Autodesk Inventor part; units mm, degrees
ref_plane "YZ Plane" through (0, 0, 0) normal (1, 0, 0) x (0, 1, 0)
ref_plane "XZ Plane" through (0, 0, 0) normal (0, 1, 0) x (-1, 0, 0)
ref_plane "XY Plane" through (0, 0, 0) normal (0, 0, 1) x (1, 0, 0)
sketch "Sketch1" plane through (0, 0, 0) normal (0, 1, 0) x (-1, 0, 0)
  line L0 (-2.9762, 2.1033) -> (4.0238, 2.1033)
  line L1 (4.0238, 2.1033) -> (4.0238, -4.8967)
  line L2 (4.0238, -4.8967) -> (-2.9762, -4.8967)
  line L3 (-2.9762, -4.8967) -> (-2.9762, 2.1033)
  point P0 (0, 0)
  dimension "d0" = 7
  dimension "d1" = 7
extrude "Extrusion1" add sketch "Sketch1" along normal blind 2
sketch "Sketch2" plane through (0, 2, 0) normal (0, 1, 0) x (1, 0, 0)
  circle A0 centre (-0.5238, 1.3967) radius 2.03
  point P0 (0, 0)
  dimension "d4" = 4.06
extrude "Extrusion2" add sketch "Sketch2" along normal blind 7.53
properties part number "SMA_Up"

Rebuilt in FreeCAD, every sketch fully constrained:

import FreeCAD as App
import Part
import Sketcher

V = App.Vector
Q = App.Units.Quantity

doc = App.newDocument("Part")
body = doc.addObject("PartDesign::Body", "Body")

# Sketch on XZ plane
sketch1 = body.newObject("Sketcher::SketchObject", "Sketch")
sketch1.AttachmentSupport = (doc.getObject("XZ_Plane"), [""])
sketch1.MapMode = "FlatFace"
sketch1.addGeometry(Part.LineSegment(V(-4, 2, 0), V(3, 2, 0)), False)
sketch1.addGeometry(Part.LineSegment(V(3, 2, 0), V(3, -5, 0)), False)
sketch1.addGeometry(Part.LineSegment(V(3, -5, 0), V(-4, -5, 0)), False)
sketch1.addGeometry(Part.LineSegment(V(-4, -5, 0), V(-4, 2, 0)), False)
sketch1.addConstraint(Sketcher.Constraint("Coincident", 0, 2, 1, 1))
sketch1.addConstraint(Sketcher.Constraint("Coincident", 1, 2, 2, 1))
sketch1.addConstraint(Sketcher.Constraint("Coincident", 2, 2, 3, 1))
sketch1.addConstraint(Sketcher.Constraint("Coincident", 3, 2, 0, 1))
sketch1.addConstraint(Sketcher.Constraint("Horizontal", 0))
sketch1.addConstraint(Sketcher.Constraint("Vertical", 1))
sketch1.addConstraint(Sketcher.Constraint("Horizontal", 2))
sketch1.addConstraint(Sketcher.Constraint("Vertical", 3))
sketch1.addConstraint(Sketcher.Constraint("Equal", 2, 1))
sketch1.addConstraint(Sketcher.Constraint("DistanceX", 0, 1, 0, 2, Q("7 mm")))
sketch1.addConstraint(Sketcher.Constraint("DistanceX", -1, 1, 0, 2, Q("2.9762 mm")))
sketch1.addConstraint(Sketcher.Constraint("DistanceY", -1, 1, 0, 2, Q("2.1033 mm")))
pad1 = body.newObject("PartDesign::Pad", "Pad")
pad1.Profile = sketch1
pad1.Length = 2
pad1.Reversed = True

# Sketch on XZ plane
sketch2 = body.newObject("Sketcher::SketchObject", "Sketch001")
sketch2.AttachmentSupport = (doc.getObject("XZ_Plane"), [""])
sketch2.MapMode = "FlatFace"
sketch2.AttachmentOffset = App.Placement(V(0, 0, -2), App.Rotation())
sketch2.addGeometry(Part.Circle(V(-0.5, -1.4, 0), V(0, 0, 1), 2), False)
sketch2.addConstraint(Sketcher.Constraint("Diameter", 0, Q("4.06 mm")))
sketch2.addConstraint(Sketcher.Constraint("DistanceX", 0, 3, -1, 1, Q("0.5238 mm")))
sketch2.addConstraint(Sketcher.Constraint("DistanceY", 0, 3, -1, 1, Q("1.3967 mm")))
pad2 = body.newObject("PartDesign::Pad", "Pad001")
pad2.Profile = sketch2
pad2.Length = 7.53
pad2.Reversed = True

doc.recompute()
